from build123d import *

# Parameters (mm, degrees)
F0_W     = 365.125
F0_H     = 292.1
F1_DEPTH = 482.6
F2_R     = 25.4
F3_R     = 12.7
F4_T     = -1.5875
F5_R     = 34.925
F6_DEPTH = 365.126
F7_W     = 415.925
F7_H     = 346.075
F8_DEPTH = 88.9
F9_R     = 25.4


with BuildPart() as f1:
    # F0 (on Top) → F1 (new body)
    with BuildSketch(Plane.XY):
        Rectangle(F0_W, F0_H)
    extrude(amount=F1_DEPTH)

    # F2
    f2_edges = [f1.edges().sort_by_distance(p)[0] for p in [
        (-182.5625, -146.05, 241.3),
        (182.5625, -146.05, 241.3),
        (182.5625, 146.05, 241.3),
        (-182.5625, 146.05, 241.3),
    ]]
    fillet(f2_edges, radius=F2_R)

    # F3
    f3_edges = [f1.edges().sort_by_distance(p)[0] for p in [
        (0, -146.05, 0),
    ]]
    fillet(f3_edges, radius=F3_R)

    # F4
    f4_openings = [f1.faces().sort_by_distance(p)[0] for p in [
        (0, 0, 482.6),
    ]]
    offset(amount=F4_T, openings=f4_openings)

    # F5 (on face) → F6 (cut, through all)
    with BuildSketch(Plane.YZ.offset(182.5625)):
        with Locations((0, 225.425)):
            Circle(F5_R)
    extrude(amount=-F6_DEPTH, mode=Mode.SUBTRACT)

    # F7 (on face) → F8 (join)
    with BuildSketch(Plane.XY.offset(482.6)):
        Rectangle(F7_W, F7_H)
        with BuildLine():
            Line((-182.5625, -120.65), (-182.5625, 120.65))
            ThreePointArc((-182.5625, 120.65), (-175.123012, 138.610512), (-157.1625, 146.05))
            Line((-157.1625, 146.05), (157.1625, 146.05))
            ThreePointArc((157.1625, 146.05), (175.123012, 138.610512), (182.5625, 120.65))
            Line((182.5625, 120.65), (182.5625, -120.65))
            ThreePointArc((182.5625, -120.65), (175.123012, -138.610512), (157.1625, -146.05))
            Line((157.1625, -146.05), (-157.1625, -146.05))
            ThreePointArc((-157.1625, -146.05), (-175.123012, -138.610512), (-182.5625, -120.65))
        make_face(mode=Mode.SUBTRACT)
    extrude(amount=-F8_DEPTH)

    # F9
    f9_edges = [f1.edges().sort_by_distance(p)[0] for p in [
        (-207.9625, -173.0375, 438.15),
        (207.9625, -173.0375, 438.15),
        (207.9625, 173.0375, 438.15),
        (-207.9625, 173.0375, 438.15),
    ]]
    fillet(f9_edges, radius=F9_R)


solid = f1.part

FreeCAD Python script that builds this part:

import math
import FreeCAD as App
import Part
import Sketcher

V = App.Vector
Q = App.Units.Quantity


def edges_at(feature, points):
    """Names of the edges that pass closest to the given points."""
    edges = feature.Shape.Edges
    near = lambda p: min(range(len(edges)), key=lambda i: edges[i].distToShape(Part.Vertex(*p))[0])
    return sorted({f"Edge{near(p) + 1}" for p in points})


def faces_at(feature, points):
    """Names of the faces that lie closest to the given points."""
    faces = feature.Shape.Faces
    near = lambda p: min(range(len(faces)), key=lambda i: faces[i].distToShape(Part.Vertex(*p))[0])
    return sorted({f"Face{near(p) + 1}" for p in points})


def add_polygon(sketch, points):
    """Adds a closed chain of lines whose ends are joined by coincident constraints."""
    first, n = sketch.GeometryCount, len(points)
    for a, b in zip(points, points[1:] + points[:1]):
        sketch.addGeometry(Part.LineSegment(App.Vector(*a, 0), App.Vector(*b, 0)), False)
    for i in range(n):
        sketch.addConstraint(Sketcher.Constraint("Coincident", first + i, 2, first + (i + 1) % n, 1))

doc = App.newDocument("Part")
body = doc.addObject("PartDesign::Body", "Body")

# Sketch on XY plane
sketch1 = body.newObject("Sketcher::SketchObject", "Sketch")
sketch1.AttachmentSupport = (doc.getObject("XY_Plane"), [""])
sketch1.MapMode = "FlatFace"
add_polygon(sketch1, [(-183, 146), (-183, -146), (183, -146), (183, 146)])  # lines 0-3
sketch1.addConstraint([
    Sketcher.Constraint("Vertical", 0),
    Sketcher.Constraint("Horizontal", 1),
    Sketcher.Constraint("Vertical", 2),
    Sketcher.Constraint("Horizontal", 3),
    Sketcher.Constraint("Symmetric", 0, 2, 2, 2, -1, 1),
    Sketcher.Constraint("DistanceY", 0, 2, 0, 1, Q("11.5 in")),
    Sketcher.Constraint("DistanceX", 1, 1, 1, 2, Q("14.375 in")),
])
pad1 = body.newObject("PartDesign::Pad", "Pad")
pad1.Profile = sketch1
pad1.Length = Q("19 in")
doc.recompute()

fillet = body.newObject("PartDesign::Fillet", "Fillet")
fillet.Base = (pad1, edges_at(pad1, [
    (-182.562, -146.05, 241.3),
    (182.562, -146.05, 241.3),
    (182.562, 146.05, 241.3),
    (-182.562, 146.05, 241.3),
]))
fillet.Radius = Q("1 in")
doc.recompute()

fillet2 = body.newObject("PartDesign::Fillet", "Fillet001")
fillet2.Base = (fillet, edges_at(fillet, [(0, -146.05, 0)]))
fillet2.Radius = Q("0.5 in")
doc.recompute()

thickness = body.newObject("PartDesign::Thickness", "Thickness")
thickness.Base = (fillet2, faces_at(fillet2, [(0, 0, 482.6)]))
thickness.Value = Q("0.0625 in")
thickness.Reversed = True
thickness.Join = "Arc"

# Sketch on YZ plane
sketch2 = body.newObject("Sketcher::SketchObject", "Sketch001")
sketch2.AttachmentSupport = (doc.getObject("YZ_Plane"), [""])
sketch2.MapMode = "FlatFace"
sketch2.AttachmentOffset = App.Placement(V(0, 0, 7.1875 * 25.4), App.Rotation())
sketch2.addGeometry(Part.Circle(V(0, 225, 0), V(0, 0, 1), 35), False)
sketch2.addConstraint([
    Sketcher.Constraint("PointOnObject", 0, 3, -2),
    Sketcher.Constraint("Diameter", 0, Q("2.75 in")),
    Sketcher.Constraint("DistanceY", -1, 1, 0, 3, Q("8.875 in")),
])
pocket1 = body.newObject("PartDesign::Pocket", "Pocket")
pocket1.Profile = sketch2
pocket1.Type = "ThroughAll"

# Sketch on XY plane
sketch3 = body.newObject("Sketcher::SketchObject", "Sketch002")
sketch3.AttachmentSupport = (doc.getObject("XY_Plane"), [""])
sketch3.MapMode = "FlatFace"
sketch3.AttachmentOffset = App.Placement(V(0, 0, 19 * 25.4), App.Rotation())
add_polygon(sketch3, [(-208, 173), (-208, -173), (208, -173), (208, 173)])  # lines 0-3
sketch3.addGeometry(Part.ArcOfCircle(Part.Circle(V(-157, -121, 0), V(0, 0, 1), 25), math.radians(-180), math.radians(-90)), False)  # 4
sketch3.addGeometry(Part.LineSegment(V(-183, -121, 0), V(-183, 121, 0)), False)  # 5
sketch3.addGeometry(Part.ArcOfCircle(Part.Circle(V(-157, 121, 0), V(0, 0, 1), 25), math.radians(90), math.radians(180)), False)  # 6
sketch3.addGeometry(Part.LineSegment(V(-157, 146, 0), V(157, 146, 0)), False)  # 7
sketch3.addGeometry(Part.ArcOfCircle(Part.Circle(V(157, 121, 0), V(0, 0, 1), 25), math.radians(0), math.radians(90)), False)  # 8
sketch3.addGeometry(Part.LineSegment(V(183, 121, 0), V(183, -121, 0)), False)  # 9
sketch3.addGeometry(Part.ArcOfCircle(Part.Circle(V(157, -121, 0), V(0, 0, 1), 25), math.radians(-90), math.radians(0)), False)  # 10
sketch3.addGeometry(Part.LineSegment(V(157, -146, 0), V(-157, -146, 0)), False)  # 11
sketch3.addConstraint([
    Sketcher.Constraint("Tangent", 4, 1, 5, 1),
    Sketcher.Constraint("Tangent", 5, 2, 6, 2),
    Sketcher.Constraint("Tangent", 6, 1, 7, 1),
    Sketcher.Constraint("Tangent", 7, 2, 8, 2),
    Sketcher.Constraint("Tangent", 8, 1, 9, 1),
    Sketcher.Constraint("Tangent", 9, 2, 10, 2),
    Sketcher.Constraint("Tangent", 10, 1, 11, 1),
    Sketcher.Constraint("Tangent", 11, 2, 4, 2),
    Sketcher.Constraint("Vertical", 0),
    Sketcher.Constraint("Horizontal", 1),
    Sketcher.Constraint("Vertical", 2),
    Sketcher.Constraint("Horizontal", 3),
    Sketcher.Constraint("Vertical", 5),
    Sketcher.Constraint("Horizontal", 7),
    Sketcher.Constraint("Vertical", 9),
    Sketcher.Constraint("Horizontal", 11),
    Sketcher.Constraint("Equal", 4, 6),
    Sketcher.Constraint("Equal", 6, 8),
    Sketcher.Constraint("Equal", 8, 10),
    Sketcher.Constraint("Symmetric", 4, 3, 8, 3, -1, 1),
    Sketcher.Constraint("Symmetric", 0, 2, 2, 2, -1, 1),
    Sketcher.Constraint("Radius", 4, Q("1 in")),
    Sketcher.Constraint("DistanceY", 5, 1, 5, 2, Q("9.5 in")),
    Sketcher.Constraint("DistanceX", 0, 2, 4, 3, Q("2 in")),
    Sketcher.Constraint("DistanceX", 1, 1, 1, 2, Q("16.375 in")),
    Sketcher.Constraint("DistanceY", 0, 2, 0, 1, Q("13.625 in")),
])
pad2 = body.newObject("PartDesign::Pad", "Pad001")
pad2.Profile = sketch3
pad2.Length = Q("3.5 in")
pad2.Reversed = True
doc.recompute()

fillet3 = body.newObject("PartDesign::Fillet", "Fillet002")
fillet3.Base = (pad2, edges_at(pad2, [
    (-207.963, -173.037, 438.15),
    (207.963, -173.037, 438.15),
    (207.963, 173.037, 438.15),
    (-207.963, 173.037, 438.15),
]))
fillet3.Radius = Q("1 in")

doc.recompute()
